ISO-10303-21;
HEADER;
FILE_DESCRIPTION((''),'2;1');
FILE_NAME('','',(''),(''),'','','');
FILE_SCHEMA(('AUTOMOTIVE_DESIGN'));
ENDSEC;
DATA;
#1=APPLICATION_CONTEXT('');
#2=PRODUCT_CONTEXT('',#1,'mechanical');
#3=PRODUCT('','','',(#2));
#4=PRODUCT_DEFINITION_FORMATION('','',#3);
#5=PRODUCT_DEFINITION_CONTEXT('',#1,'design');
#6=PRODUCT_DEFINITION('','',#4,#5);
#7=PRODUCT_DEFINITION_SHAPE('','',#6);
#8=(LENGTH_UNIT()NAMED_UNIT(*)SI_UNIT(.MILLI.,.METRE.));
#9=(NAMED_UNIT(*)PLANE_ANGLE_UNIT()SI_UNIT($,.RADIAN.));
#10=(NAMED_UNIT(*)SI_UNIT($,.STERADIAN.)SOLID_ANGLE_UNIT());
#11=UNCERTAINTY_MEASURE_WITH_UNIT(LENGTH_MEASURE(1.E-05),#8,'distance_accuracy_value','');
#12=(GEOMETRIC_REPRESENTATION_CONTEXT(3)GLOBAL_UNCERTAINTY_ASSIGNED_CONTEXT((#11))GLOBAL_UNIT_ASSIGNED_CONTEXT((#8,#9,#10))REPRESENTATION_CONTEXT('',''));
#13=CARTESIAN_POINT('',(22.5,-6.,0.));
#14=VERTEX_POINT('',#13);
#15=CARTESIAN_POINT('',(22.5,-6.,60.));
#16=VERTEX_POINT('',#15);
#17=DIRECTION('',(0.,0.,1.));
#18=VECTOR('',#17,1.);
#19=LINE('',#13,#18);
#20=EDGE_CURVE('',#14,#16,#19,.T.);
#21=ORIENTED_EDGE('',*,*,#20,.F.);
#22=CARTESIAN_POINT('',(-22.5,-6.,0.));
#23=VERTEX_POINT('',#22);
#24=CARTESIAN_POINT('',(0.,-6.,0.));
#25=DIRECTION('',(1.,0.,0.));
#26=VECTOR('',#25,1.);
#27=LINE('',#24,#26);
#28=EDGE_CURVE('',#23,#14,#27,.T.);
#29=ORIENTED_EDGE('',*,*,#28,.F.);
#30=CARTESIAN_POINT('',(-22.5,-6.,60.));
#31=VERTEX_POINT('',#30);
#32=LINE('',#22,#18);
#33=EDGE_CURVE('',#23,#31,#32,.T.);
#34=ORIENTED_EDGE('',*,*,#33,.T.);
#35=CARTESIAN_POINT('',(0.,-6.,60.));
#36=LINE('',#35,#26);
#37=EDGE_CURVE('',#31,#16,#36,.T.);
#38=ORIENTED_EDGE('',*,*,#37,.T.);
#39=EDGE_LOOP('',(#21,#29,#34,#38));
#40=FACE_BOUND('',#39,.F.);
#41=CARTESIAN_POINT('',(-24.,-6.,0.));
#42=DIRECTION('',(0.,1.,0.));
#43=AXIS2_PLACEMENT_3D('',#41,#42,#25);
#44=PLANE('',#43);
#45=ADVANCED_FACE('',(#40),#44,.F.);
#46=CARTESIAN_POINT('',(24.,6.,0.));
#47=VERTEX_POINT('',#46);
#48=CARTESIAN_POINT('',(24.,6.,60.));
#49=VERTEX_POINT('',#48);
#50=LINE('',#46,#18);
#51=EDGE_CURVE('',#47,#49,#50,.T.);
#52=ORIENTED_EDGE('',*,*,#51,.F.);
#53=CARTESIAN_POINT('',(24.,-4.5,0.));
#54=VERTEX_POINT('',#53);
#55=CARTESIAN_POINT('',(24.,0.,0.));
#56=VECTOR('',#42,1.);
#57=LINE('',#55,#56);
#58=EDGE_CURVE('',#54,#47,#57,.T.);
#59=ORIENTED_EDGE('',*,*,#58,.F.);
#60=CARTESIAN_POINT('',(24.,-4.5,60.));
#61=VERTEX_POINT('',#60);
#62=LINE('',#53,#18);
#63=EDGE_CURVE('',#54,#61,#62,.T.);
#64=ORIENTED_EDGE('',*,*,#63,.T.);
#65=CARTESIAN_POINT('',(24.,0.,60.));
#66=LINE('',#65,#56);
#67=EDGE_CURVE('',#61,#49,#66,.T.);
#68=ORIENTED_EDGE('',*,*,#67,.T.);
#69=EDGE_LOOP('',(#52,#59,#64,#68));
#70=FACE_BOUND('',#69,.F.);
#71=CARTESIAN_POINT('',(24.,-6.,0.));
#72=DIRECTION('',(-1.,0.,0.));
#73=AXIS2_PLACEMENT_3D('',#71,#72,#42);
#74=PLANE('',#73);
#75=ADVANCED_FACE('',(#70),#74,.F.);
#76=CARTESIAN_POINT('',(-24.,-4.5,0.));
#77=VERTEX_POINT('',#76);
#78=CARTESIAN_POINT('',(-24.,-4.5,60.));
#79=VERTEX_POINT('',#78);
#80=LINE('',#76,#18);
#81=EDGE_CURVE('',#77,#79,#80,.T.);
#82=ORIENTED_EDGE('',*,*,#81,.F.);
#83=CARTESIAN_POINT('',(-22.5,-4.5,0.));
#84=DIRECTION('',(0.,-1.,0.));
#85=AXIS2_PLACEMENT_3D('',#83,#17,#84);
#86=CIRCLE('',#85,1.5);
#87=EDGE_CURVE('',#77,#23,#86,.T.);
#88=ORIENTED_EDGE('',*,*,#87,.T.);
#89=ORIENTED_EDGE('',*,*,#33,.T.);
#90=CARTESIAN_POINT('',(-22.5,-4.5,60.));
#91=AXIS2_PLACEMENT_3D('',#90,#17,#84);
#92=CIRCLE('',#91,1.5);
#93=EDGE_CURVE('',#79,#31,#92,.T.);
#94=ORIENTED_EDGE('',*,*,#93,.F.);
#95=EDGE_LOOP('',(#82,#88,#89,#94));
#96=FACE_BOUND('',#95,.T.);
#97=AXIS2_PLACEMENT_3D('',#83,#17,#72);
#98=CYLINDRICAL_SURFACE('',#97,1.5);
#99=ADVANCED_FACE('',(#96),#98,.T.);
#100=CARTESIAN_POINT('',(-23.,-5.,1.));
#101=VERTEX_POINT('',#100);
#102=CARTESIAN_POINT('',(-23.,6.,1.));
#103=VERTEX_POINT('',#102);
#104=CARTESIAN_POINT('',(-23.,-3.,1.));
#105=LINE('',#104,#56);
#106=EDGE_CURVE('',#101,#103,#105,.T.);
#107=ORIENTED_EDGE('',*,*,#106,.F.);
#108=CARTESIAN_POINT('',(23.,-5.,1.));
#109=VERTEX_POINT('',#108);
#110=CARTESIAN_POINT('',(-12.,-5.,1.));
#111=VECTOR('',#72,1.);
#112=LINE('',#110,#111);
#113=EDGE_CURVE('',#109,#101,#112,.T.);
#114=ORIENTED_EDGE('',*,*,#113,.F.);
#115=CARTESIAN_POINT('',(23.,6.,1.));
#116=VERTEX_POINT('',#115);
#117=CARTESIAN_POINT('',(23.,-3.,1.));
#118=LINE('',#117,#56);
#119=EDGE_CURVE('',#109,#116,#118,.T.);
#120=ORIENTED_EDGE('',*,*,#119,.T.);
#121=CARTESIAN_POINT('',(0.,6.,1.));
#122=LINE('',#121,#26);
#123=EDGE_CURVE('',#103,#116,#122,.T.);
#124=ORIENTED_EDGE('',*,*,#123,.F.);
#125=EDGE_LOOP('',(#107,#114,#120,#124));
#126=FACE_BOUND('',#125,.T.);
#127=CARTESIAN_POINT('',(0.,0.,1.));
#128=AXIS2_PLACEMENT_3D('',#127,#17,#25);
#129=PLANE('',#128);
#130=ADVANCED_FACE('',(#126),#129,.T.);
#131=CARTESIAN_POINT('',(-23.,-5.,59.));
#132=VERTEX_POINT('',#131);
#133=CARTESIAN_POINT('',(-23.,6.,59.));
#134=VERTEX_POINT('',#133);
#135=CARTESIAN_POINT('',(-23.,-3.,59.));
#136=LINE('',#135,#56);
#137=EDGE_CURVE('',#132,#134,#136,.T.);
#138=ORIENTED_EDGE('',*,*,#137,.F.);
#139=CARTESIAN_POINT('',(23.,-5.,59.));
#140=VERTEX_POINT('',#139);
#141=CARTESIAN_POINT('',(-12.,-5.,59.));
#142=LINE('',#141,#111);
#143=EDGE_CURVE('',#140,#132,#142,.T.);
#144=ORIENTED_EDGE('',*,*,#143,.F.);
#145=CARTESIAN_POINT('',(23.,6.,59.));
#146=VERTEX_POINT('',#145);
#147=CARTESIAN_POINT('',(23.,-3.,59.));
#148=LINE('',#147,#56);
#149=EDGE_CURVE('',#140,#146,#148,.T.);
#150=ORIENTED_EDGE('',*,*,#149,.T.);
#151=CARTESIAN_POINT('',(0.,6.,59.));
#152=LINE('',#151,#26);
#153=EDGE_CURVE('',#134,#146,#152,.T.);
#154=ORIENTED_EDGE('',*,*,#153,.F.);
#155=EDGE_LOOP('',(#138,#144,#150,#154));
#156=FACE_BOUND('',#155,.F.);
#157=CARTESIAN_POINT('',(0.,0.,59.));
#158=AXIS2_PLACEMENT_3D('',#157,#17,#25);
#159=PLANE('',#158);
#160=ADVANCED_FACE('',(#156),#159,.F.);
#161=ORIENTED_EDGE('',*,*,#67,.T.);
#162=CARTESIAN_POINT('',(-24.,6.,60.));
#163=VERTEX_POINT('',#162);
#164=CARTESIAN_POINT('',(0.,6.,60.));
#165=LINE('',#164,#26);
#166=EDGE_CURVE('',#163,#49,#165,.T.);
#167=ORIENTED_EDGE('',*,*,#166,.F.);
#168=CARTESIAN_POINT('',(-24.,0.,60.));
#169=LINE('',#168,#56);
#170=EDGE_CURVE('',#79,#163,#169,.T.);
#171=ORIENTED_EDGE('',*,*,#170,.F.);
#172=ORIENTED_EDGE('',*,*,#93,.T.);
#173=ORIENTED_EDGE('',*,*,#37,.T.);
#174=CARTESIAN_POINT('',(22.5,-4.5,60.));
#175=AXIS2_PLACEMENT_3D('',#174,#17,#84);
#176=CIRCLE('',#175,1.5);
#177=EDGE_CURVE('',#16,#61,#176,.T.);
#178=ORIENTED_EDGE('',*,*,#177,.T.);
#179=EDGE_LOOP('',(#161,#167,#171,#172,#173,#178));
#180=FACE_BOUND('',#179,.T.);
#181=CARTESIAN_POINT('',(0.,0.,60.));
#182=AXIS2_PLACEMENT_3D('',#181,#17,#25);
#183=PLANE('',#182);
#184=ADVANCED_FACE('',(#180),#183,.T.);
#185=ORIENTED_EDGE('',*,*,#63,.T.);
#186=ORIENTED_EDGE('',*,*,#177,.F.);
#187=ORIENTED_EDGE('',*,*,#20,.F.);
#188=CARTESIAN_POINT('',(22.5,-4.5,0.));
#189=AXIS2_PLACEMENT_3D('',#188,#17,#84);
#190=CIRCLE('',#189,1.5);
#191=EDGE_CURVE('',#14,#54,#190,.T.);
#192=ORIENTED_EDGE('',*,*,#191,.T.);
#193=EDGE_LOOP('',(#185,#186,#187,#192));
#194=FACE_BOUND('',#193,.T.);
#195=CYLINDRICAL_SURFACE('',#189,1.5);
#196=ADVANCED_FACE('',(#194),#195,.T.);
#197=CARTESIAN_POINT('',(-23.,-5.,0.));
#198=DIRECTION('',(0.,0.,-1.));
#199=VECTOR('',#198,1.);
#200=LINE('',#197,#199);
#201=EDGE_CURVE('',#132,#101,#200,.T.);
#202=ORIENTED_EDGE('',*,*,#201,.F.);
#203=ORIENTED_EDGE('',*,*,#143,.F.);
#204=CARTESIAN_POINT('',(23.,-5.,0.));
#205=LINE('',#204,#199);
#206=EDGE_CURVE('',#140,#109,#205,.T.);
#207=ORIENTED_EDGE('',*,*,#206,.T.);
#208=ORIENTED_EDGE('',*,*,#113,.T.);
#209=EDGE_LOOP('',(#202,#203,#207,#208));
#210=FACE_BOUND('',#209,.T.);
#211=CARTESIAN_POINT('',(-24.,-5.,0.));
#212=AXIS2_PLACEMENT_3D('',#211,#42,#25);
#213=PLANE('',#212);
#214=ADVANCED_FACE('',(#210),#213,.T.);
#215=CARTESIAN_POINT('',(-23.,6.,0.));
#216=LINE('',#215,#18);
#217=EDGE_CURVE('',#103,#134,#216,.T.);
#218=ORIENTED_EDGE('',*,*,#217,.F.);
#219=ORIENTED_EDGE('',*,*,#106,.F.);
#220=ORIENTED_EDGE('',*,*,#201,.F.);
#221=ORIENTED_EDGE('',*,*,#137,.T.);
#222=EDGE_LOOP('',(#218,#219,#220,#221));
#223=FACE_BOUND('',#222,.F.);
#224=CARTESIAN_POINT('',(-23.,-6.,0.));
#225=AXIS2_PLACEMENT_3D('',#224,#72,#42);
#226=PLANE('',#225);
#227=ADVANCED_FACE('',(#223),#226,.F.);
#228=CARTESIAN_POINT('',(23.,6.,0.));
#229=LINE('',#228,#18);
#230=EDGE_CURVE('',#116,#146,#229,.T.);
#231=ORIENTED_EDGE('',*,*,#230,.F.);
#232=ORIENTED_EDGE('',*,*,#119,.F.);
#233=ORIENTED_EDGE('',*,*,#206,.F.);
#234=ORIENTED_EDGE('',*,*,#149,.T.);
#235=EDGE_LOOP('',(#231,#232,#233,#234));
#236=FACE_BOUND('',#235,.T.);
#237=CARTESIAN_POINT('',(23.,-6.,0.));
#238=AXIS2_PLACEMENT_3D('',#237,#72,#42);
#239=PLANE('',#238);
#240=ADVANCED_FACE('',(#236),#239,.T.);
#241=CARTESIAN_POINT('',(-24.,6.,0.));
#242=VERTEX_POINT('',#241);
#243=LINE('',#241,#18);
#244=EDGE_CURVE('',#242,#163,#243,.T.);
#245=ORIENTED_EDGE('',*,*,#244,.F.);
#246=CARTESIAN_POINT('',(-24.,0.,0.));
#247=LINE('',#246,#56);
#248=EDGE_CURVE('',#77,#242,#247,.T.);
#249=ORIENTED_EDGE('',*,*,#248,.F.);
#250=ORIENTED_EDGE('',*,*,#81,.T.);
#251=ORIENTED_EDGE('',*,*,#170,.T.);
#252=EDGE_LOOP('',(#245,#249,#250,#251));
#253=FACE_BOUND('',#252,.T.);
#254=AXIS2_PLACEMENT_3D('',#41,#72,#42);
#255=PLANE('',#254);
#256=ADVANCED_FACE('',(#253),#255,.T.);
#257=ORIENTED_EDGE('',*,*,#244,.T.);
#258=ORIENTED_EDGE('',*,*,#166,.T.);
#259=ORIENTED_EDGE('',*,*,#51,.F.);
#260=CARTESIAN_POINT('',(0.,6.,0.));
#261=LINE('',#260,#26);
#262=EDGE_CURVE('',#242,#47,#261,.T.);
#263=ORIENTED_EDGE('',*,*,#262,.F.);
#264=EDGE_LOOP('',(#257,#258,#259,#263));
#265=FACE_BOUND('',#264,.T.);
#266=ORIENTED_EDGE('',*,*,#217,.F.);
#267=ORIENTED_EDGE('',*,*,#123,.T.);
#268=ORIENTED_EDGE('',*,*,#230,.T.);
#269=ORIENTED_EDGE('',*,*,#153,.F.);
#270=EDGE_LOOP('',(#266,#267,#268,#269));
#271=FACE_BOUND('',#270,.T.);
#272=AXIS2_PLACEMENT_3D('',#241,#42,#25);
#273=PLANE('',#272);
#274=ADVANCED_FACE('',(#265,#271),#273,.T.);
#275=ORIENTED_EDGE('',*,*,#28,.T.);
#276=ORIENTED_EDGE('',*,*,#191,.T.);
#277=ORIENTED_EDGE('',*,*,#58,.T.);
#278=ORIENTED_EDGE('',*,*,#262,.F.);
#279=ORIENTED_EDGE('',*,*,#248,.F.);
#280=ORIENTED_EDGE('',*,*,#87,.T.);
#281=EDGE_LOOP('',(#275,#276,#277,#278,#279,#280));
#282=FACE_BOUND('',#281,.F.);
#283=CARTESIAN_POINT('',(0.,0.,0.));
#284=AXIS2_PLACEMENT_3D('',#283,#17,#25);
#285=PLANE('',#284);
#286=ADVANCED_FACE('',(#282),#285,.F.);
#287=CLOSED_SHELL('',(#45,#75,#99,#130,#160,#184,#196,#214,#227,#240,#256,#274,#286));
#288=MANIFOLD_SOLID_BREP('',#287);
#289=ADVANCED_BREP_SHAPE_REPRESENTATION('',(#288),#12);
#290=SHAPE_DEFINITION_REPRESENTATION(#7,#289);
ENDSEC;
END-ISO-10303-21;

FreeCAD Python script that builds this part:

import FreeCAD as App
import Part
import Sketcher

V = App.Vector


def edges_at(feature, points):
    """Names of the edges that pass closest to the given points."""
    edges = feature.Shape.Edges
    near = lambda p: min(range(len(edges)), key=lambda i: edges[i].distToShape(Part.Vertex(*p))[0])
    return sorted({f"Edge{near(p) + 1}" for p in points})


def faces_at(feature, points):
    """Names of the faces that lie closest to the given points."""
    faces = feature.Shape.Faces
    near = lambda p: min(range(len(faces)), key=lambda i: faces[i].distToShape(Part.Vertex(*p))[0])
    return sorted({f"Face{near(p) + 1}" for p in points})


def add_polygon(sketch, points):
    """Adds a closed chain of lines whose ends are joined by coincident constraints."""
    first, n = sketch.GeometryCount, len(points)
    for a, b in zip(points, points[1:] + points[:1]):
        sketch.addGeometry(Part.LineSegment(App.Vector(*a, 0), App.Vector(*b, 0)), False)
    for i in range(n):
        sketch.addConstraint(Sketcher.Constraint("Coincident", first + i, 2, first + (i + 1) % n, 1))

doc = App.newDocument("Part")
params = doc.addObject("Spreadsheet::Sheet", "Params")
for row, (alias, value) in enumerate([
    ("sketch1_width", "48 mm"),
    ("sketch1_height", "12 mm"),
    ("pad1_length", "60 mm"),
    ("thickness_wall", "1 mm"),
    ("fillet_radius", "1.5 mm"),
], start=1):
    params.set(f"A{row}", alias)
    params.set(f"B{row}", "=" + value)
    params.setAlias(f"B{row}", alias)

body = doc.addObject("PartDesign::Body", "Body")

sketch1 = body.newObject("Sketcher::SketchObject", "Sketch")
sketch1.AttachmentSupport = (doc.getObject("XY_Plane"), [""])
sketch1.MapMode = "FlatFace"
add_polygon(sketch1, [(-24, 6), (-24, -6), (24, -6), (24, 6)])
sketch1.addConstraint([
    Sketcher.Constraint("Vertical", 0),
    Sketcher.Constraint("Horizontal", 1),
    Sketcher.Constraint("Vertical", 2),
    Sketcher.Constraint("Horizontal", 3),
    Sketcher.Constraint("Symmetric", 0, 2, 2, 2, -1, 1),
    Sketcher.Constraint("DistanceX", 1, 1, 1, 2, 48.0),
    Sketcher.Constraint("DistanceY", 0, 2, 0, 1, 12.0),
])
sketch1.setExpression("Constraints[9]", "Params.sketch1_width")
sketch1.setExpression("Constraints[10]", "Params.sketch1_height")
pad1 = body.newObject("PartDesign::Pad", "Pad")
pad1.Profile = sketch1
pad1.setExpression("Length", "Params.pad1_length")
doc.recompute()

thickness = body.newObject("PartDesign::Thickness", "Thickness")
thickness.Base = (pad1, faces_at(pad1, [(0, 6, 30)]))
thickness.setExpression("Value", "Params.thickness_wall")
thickness.Reversed = True
thickness.Join = "Arc"
doc.recompute()

fillet = body.newObject("PartDesign::Fillet", "Fillet")
fillet.Base = (thickness, edges_at(thickness, [(24, -6, 30), (-24, -6, 30)]))
fillet.setExpression("Radius", "Params.fillet_radius")

doc.recompute()
